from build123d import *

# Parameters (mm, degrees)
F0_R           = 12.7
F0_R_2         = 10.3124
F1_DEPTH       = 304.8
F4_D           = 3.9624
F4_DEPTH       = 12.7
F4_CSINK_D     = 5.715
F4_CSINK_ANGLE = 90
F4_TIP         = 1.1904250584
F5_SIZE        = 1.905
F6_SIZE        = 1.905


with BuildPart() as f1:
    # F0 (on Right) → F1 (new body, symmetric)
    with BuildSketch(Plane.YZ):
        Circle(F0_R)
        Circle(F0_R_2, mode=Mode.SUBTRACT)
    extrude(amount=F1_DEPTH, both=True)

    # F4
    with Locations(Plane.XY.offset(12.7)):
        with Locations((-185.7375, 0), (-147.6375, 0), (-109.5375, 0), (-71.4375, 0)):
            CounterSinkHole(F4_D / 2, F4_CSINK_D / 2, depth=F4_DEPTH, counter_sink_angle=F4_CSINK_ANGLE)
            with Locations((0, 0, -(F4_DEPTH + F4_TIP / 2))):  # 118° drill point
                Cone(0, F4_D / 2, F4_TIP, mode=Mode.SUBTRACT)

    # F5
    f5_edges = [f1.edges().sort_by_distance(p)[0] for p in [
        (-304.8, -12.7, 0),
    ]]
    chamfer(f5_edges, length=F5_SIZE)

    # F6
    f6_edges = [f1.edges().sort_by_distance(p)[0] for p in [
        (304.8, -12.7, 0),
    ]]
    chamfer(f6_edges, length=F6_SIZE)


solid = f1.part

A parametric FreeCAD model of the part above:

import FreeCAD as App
import Part
import Sketcher
from FreeCAD import Vector
Q = App.Units.Quantity


def edges_at(feature, points):
    """Names of the edges that pass closest to the given points."""
    edges = feature.Shape.Edges
    near = lambda p: min(range(len(edges)), key=lambda i: edges[i].distToShape(Part.Vertex(*p))[0])
    return sorted({f"Edge{near(p) + 1}" for p in points})

doc = App.newDocument("Part")
params = doc.addObject("Spreadsheet::Sheet", "Params")
for row, (alias, value) in enumerate([
    ("sketch1_diameter", "1 in"),
    ("sketch1_diameter2", "0.812 in"),
    ("pad1_length", "24 in"),
    ("sketch2_diameter", "0.156 in"),
    ("hole_diameter", "0.156 in"),
    ("hole_depth", "0.5 in"),
    ("hole_csink_diameter", "0.225 in"),
    ("chamfer_size", "0.075 in"),
    ("chamfer2_size", "0.075 in"),
], start=1):
    params.set(f"A{row}", alias)
    params.set(f"B{row}", "=" + value)
    params.setAlias(f"B{row}", alias)

body = doc.addObject("PartDesign::Body", "Body")

sketch1 = body.newObject("Sketcher::SketchObject", "Sketch")
sketch1.AttachmentSupport = (doc.getObject("YZ_Plane"), [""])
sketch1.MapMode = "FlatFace"
sketch1.addGeometry([
    Part.Circle(Vector(0, 0, 0), Vector(0, 0, 1), 12.7),
    Part.Circle(Vector(0, 0, 0), Vector(0, 0, 1), 10.3124),
], False)
sketch1.addConstraint([
    Sketcher.Constraint("Coincident", 0, 3, -1, 1),
    Sketcher.Constraint("Coincident", 1, 3, -1, 1),
    Sketcher.Constraint("Diameter", 0, Q("1 in")),
    Sketcher.Constraint("Diameter", 1, Q("0.812 in")),
])
sketch1.setExpression("Constraints[2]", "Params.sketch1_diameter")
sketch1.setExpression("Constraints[3]", "Params.sketch1_diameter2")
pad1 = body.newObject("PartDesign::Pad", "Pad")
pad1.Profile = sketch1
pad1.setExpression("Length", "Params.pad1_length")
pad1.Midplane = True

sketch2 = body.newObject("Sketcher::SketchObject", "Sketch001")
sketch2.AttachmentSupport = (doc.getObject("XY_Plane"), [""])
sketch2.MapMode = "FlatFace"
sketch2.AttachmentOffset = App.Placement(Vector(0, 0, 0.5 * 25.4), App.Rotation())
sketch2.addGeometry([
    Part.Circle(Vector(-185.7375, 0, 0), Vector(0, 0, 1), 1.9812),
    Part.Circle(Vector(-147.6375, 0, 0), Vector(0, 0, 1), 1.9812),
    Part.Circle(Vector(-109.5375, 0, 0), Vector(0, 0, 1), 1.9812),
    Part.Circle(Vector(-71.4375, 0, 0), Vector(0, 0, 1), 1.9812),
], False)
sketch2.addConstraint([
    Sketcher.Constraint("Equal", 0, 1),
    Sketcher.Constraint("Equal", 1, 2),
    Sketcher.Constraint("Equal", 2, 3),
    Sketcher.Constraint("PointOnObject", 0, 3, -1),
    Sketcher.Constraint("PointOnObject", 1, 3, -1),
    Sketcher.Constraint("PointOnObject", 2, 3, -1),
    Sketcher.Constraint("PointOnObject", 3, 3, -1),
    Sketcher.Constraint("Diameter", 0, Q("0.156 in")),
    Sketcher.Constraint("DistanceX", 0, 3, 2, 3, Q("3 in")),
    Sketcher.Constraint("DistanceX", 1, 3, 3, 3, Q("3 in")),
    Sketcher.Constraint("DistanceX", 0, 3, 1, 3, Q("1.5 in")),
    Sketcher.Constraint("DistanceX", 0, 3, -1, 1, Q("7.3125 in")),
])
sketch2.setExpression("Constraints[7]", "Params.sketch2_diameter")
doc.recompute()
hole = body.newObject("PartDesign::Hole", "Hole")
hole.Profile = sketch2
hole.ThreadType = "None"
hole.setExpression("Diameter", "Params.hole_diameter")
hole.DepthType = "Dimension"
hole.setExpression("Depth", "Params.hole_depth")
hole.DrillPoint = "Angled"
hole.DrillPointAngle = 118
hole.HoleCutType = "Countersink"
hole.setExpression("HoleCutDiameter", "Params.hole_csink_diameter")
hole.HoleCutCountersinkAngle = 90
doc.recompute()

chamfer = body.newObject("PartDesign::Chamfer", "Chamfer")
chamfer.Base = (hole, edges_at(hole, [(-304.8, -12.7, 0)]))
chamfer.setExpression("Size", "Params.chamfer_size")
doc.recompute()

chamfer2 = body.newObject("PartDesign::Chamfer", "Chamfer001")
chamfer2.Base = (chamfer, edges_at(chamfer, [(304.8, -12.7, 0)]))
chamfer2.setExpression("Size", "Params.chamfer2_size")

doc.recompute()
